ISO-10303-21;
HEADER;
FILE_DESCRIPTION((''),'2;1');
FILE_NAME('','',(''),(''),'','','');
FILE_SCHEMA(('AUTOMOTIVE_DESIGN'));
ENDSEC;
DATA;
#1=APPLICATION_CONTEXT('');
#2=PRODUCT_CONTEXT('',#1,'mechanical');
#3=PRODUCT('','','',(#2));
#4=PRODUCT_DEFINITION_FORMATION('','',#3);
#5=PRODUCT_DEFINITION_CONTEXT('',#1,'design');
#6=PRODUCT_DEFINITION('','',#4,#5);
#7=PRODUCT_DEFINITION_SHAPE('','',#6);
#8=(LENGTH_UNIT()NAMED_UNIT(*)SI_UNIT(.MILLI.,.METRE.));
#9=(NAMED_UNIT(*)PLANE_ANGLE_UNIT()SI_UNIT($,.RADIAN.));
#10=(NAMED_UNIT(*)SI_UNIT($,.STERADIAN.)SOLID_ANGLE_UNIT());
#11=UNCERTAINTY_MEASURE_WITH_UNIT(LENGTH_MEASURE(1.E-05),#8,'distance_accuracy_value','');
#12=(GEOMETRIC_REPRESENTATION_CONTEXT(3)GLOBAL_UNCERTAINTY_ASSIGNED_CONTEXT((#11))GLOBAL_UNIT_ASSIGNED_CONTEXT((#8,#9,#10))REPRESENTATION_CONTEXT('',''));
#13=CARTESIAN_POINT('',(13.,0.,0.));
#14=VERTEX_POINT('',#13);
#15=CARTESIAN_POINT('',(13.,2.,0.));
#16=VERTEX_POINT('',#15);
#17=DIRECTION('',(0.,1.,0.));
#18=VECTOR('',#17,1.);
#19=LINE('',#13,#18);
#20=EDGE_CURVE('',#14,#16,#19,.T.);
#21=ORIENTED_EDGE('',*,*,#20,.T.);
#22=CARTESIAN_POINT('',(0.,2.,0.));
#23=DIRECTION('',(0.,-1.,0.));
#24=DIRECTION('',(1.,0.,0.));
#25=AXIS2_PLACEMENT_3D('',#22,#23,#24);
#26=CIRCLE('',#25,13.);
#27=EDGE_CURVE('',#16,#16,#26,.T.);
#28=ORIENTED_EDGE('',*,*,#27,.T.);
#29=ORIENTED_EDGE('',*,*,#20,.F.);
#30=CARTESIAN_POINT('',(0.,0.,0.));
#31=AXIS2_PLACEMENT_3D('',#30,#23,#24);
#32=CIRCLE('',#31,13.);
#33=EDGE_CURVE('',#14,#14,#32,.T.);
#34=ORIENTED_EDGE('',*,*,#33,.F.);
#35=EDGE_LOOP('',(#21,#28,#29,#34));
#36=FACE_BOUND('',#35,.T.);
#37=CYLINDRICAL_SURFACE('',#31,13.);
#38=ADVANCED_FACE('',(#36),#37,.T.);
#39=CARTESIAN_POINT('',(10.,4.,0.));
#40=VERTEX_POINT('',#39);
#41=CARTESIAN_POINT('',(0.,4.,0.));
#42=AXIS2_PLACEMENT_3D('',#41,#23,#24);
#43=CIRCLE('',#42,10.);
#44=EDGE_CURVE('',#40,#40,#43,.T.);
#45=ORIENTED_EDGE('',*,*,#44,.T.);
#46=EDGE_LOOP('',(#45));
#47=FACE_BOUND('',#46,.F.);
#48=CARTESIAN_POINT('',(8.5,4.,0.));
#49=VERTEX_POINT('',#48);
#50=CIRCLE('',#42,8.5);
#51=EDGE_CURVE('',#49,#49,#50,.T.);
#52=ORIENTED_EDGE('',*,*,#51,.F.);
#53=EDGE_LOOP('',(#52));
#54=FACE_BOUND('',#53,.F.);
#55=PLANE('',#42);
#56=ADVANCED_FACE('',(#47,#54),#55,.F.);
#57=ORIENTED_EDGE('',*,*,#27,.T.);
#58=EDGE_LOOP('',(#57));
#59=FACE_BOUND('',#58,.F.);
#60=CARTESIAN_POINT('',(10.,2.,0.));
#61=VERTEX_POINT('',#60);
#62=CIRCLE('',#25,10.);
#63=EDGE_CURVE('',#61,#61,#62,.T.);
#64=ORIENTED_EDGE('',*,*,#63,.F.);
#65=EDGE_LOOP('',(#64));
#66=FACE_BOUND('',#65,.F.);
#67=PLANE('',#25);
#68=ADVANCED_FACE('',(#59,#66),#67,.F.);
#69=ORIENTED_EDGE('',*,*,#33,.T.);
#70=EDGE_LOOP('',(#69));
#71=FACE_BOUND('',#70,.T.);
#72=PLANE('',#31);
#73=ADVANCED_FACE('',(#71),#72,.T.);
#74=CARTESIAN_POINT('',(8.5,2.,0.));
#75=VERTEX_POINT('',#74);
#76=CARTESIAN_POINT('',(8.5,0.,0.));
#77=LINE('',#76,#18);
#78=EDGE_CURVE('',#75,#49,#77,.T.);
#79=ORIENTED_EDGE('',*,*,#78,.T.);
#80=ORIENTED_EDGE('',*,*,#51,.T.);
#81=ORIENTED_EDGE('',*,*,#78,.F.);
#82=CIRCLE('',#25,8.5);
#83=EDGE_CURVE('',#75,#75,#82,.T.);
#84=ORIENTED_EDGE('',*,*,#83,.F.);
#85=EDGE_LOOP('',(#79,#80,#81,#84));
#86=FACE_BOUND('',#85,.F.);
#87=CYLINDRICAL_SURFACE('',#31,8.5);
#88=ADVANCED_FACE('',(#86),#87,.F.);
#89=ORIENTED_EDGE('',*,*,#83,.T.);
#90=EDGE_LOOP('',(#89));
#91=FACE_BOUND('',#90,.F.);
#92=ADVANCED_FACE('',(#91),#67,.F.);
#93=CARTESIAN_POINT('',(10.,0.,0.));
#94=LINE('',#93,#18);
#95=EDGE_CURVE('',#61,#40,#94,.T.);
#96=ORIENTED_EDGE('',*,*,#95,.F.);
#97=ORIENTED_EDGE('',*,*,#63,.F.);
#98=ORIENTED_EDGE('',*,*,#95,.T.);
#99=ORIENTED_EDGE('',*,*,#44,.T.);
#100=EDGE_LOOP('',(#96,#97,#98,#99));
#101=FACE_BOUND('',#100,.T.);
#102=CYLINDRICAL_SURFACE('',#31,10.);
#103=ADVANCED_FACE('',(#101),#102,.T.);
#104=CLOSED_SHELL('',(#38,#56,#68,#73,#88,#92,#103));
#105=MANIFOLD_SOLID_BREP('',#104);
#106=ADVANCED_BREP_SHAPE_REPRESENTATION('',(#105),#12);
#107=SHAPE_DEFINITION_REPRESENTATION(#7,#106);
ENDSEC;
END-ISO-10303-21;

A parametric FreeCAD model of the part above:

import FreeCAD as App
import Part
import Sketcher
from FreeCAD import Vector

doc = App.newDocument("Part")
body = doc.addObject("PartDesign::Body", "Body")

# Sketch on XZ plane
sketch1 = doc.addObject("Sketcher::SketchObject", "Sketch")
body.addObject(sketch1)
sketch1.AttachmentSupport = (doc.XZ_Plane, [""])
sketch1.MapMode = "FlatFace"
sketch1.addGeometry([
    Part.Circle(Vector(0, 0, 0), Vector(0, 0, 1), 13),
    Part.Circle(Vector(0, 0, 0), Vector(0, 0, 1), 10),
], False)
sketch1.addConstraint([
    Sketcher.Constraint("Coincident", 0, 3, -1, 1),
    Sketcher.Constraint("Coincident", 1, 3, -1, 1),
    Sketcher.Constraint("Diameter", 0, 26.0),
    Sketcher.Constraint("Diameter", 1, 20.0),
])
pad1 = doc.addObject("PartDesign::Pad", "Pad")
body.addObject(pad1)
pad1.Profile = sketch1
pad1.Length = 2
pad1.Reversed = True

# Sketch on XZ plane
sketch2 = doc.addObject("Sketcher::SketchObject", "Sketch001")
body.addObject(sketch2)
sketch2.AttachmentSupport = (doc.XZ_Plane, [""])
sketch2.MapMode = "FlatFace"
sketch2.addGeometry([
    Part.Circle(Vector(0, 0, 0), Vector(0, 0, 1), 10),
    Part.Circle(Vector(0, 0, 0), Vector(0, 0, 1), 8),
], False)
sketch2.addConstraint([
    Sketcher.Constraint("Coincident", 0, 3, -1, 1),
    Sketcher.Constraint("Coincident", 1, 3, -1, 1),
    Sketcher.Constraint("Diameter", 0, 20.0),
    Sketcher.Constraint("Diameter", 1, 17.0),
])
pad2 = doc.addObject("PartDesign::Pad", "Pad001")
body.addObject(pad2)
pad2.Profile = sketch2
pad2.Length = 4
pad2.Reversed = True

# Sketch on XZ plane
sketch3 = doc.addObject("Sketcher::SketchObject", "Sketch002")
body.addObject(sketch3)
sketch3.AttachmentSupport = (doc.XZ_Plane, [""])
sketch3.MapMode = "FlatFace"
sketch3.addGeometry(Part.Circle(Vector(0, 0, 0), Vector(0, 0, 1), 8), False)
sketch3.addConstraint([
    Sketcher.Constraint("Coincident", 0, 3, -1, 1),
    Sketcher.Constraint("Diameter", 0, 17.0),
])
pad3 = doc.addObject("PartDesign::Pad", "Pad002")
body.addObject(pad3)
pad3.Profile = sketch3
pad3.Length = 2
pad3.Reversed = True

doc.recompute()
